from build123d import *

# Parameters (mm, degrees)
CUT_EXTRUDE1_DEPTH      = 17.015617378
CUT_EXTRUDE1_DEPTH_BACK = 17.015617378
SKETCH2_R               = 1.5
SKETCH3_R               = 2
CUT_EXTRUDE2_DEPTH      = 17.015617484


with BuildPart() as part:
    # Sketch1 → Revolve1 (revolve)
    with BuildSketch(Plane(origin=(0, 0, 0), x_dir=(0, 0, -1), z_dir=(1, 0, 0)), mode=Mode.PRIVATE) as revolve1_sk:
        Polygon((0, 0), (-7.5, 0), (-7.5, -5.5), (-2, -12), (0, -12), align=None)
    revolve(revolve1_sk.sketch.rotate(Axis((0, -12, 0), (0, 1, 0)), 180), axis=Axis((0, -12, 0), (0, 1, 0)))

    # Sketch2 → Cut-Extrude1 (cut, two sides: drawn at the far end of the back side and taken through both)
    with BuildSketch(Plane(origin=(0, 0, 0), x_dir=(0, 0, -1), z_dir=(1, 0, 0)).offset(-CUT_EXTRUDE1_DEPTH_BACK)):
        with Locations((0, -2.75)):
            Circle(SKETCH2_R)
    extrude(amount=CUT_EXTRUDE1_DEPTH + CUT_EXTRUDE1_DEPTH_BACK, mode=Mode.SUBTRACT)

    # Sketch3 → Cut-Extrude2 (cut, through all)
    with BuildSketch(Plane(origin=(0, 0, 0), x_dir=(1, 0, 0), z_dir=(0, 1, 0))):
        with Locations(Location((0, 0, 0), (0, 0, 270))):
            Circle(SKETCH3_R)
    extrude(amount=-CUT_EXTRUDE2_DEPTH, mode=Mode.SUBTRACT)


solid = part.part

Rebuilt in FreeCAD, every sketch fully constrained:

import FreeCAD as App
import Part
import Sketcher
from FreeCAD import Vector


def add_polygon(sketch, points):
    """Adds a closed chain of lines whose ends are joined by coincident constraints."""
    first, n = sketch.GeometryCount, len(points)
    for a, b in zip(points, points[1:] + points[:1]):
        sketch.addGeometry(Part.LineSegment(App.Vector(*a, 0), App.Vector(*b, 0)), False)
    for i in range(n):
        sketch.addConstraint(Sketcher.Constraint("Coincident", first + i, 2, first + (i + 1) % n, 1))

doc = App.newDocument("Part")
params = doc.addObject("Spreadsheet::Sheet", "Params")
for row, (alias, value) in enumerate([
    ("sketch1_width", "12 mm"),
    ("sketch1_height", "2 mm"),
    ("sketch1_width2", "5.5 mm"),
    ("sketch1_height2", "7.5 mm"),
    ("revolution_angle", "360 deg"),
    ("sketch2_diameter", "3 mm"),
    ("sketch3_diameter", "4 mm"),
], start=1):
    params.set(f"A{row}", alias)
    params.set(f"B{row}", "=" + value)
    params.setAlias(f"B{row}", alias)

body = doc.addObject("PartDesign::Body", "Body")

# Sketch on YZ plane
sketch1 = doc.addObject("Sketcher::SketchObject", "Sketch")
body.addObject(sketch1)
sketch1.AttachmentSupport = (doc.YZ_Plane, [""])
sketch1.MapMode = "FlatFace"
add_polygon(sketch1, [(0, 0), (0, 7.5), (-5.5, 7.5), (-12, 2), (-12, 0)])  # lines 0-4
sketch1.addConstraint(Sketcher.Constraint("Vertical", 0))
sketch1.addConstraint(Sketcher.Constraint("Horizontal", 1))
sketch1.addConstraint(Sketcher.Constraint("Vertical", 3))
sketch1.addConstraint(Sketcher.Constraint("Horizontal", 4))
sketch1.addConstraint(Sketcher.Constraint("Coincident", 4, 2, -1, 1))
sketch1.addConstraint(Sketcher.Constraint("DistanceX", 4, 1, 4, 2, 12.0))
sketch1.addConstraint(Sketcher.Constraint("DistanceY", 3, 2, 3, 1, 2.0))
sketch1.addConstraint(Sketcher.Constraint("DistanceX", 1, 2, 1, 1, 5.5))
sketch1.addConstraint(Sketcher.Constraint("DistanceY", 0, 1, 0, 2, 7.5))
sketch1.setExpression("Constraints[10]", "Params.sketch1_width")
sketch1.setExpression("Constraints[11]", "Params.sketch1_height")
sketch1.setExpression("Constraints[12]", "Params.sketch1_width2")
sketch1.setExpression("Constraints[13]", "Params.sketch1_height2")
revolution = doc.addObject("PartDesign::Revolution", "Revolution")
body.addObject(revolution)
revolution.Profile = sketch1
revolution.ReferenceAxis = (sketch1, ["H_Axis"])
revolution.setExpression("Angle", "Params.revolution_angle")

# Sketch on YZ plane
sketch2 = doc.addObject("Sketcher::SketchObject", "Sketch001")
body.addObject(sketch2)
sketch2.AttachmentSupport = (doc.YZ_Plane, [""])
sketch2.MapMode = "FlatFace"
sketch2.addGeometry(Part.Circle(Vector(-2.75, 0, 0), Vector(0, 0, 1), 1.5), False)
sketch2.addConstraint(Sketcher.Constraint("PointOnObject", 0, 3, -1))
sketch2.addConstraint(Sketcher.Constraint("Diameter", 0, 3.0))
sketch2.addConstraint(Sketcher.Constraint("DistanceX", 0, 3, -1, 1, 2.75))
sketch2.setExpression("Constraints[1]", "Params.sketch2_diameter")
pocket1 = doc.addObject("PartDesign::Pocket", "Pocket")
body.addObject(pocket1)
pocket1.Profile = sketch2
pocket1.Type = "ThroughAll"
pocket1.Midplane = True

# Sketch on XZ plane
sketch3 = doc.addObject("Sketcher::SketchObject", "Sketch002")
body.addObject(sketch3)
sketch3.AttachmentSupport = (doc.XZ_Plane, [""])
sketch3.MapMode = "FlatFace"
sketch3.addGeometry(Part.Circle(Vector(0, 0, 0), Vector(0, 0, 1), 2), False)
sketch3.addConstraint(Sketcher.Constraint("Coincident", 0, 3, -1, 1))
sketch3.addConstraint(Sketcher.Constraint("Diameter", 0, 4.0))
sketch3.setExpression("Constraints[1]", "Params.sketch3_diameter")
pocket2 = doc.addObject("PartDesign::Pocket", "Pocket001")
body.addObject(pocket2)
pocket2.Profile = sketch3
pocket2.Type = "ThroughAll"
pocket2.Reversed = True

doc.recompute()
